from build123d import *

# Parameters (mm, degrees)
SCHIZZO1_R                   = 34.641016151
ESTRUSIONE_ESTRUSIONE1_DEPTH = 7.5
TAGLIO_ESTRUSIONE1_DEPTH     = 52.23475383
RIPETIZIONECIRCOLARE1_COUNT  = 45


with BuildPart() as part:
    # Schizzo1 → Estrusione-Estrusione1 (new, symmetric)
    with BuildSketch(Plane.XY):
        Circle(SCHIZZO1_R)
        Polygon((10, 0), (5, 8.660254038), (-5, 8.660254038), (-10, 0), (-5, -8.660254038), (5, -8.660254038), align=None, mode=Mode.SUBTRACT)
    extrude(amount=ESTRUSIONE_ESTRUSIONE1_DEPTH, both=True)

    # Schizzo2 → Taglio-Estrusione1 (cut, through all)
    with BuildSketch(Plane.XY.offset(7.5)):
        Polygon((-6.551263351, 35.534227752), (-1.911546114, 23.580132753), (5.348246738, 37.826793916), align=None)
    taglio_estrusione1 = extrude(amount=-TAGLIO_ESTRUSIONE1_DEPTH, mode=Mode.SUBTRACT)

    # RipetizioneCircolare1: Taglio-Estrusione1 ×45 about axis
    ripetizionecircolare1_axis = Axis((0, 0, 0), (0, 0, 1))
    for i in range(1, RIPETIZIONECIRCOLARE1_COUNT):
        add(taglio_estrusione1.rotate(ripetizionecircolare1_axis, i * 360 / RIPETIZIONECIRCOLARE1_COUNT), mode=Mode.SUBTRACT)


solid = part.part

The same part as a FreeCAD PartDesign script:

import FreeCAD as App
import Part
import Sketcher

V = App.Vector
Q = App.Units.Quantity

doc = App.newDocument("Part")
body = doc.addObject("PartDesign::Body", "Body")

sketch1 = body.newObject("Sketcher::SketchObject", "Sketch")
sketch1.AttachmentSupport = (doc.getObject("XY_Plane"), [""])
sketch1.MapMode = "FlatFace"
sketch1.addGeometry([
    Part.Circle(V(0, 0, 0), V(0, 0, 1), 35),
    Part.LineSegment(V(5, 9, 0), V(10, 0, 0)),
    Part.LineSegment(V(10, 0, 0), V(5, -9, 0)),
    Part.LineSegment(V(5, -9, 0), V(-5, -9, 0)),
    Part.LineSegment(V(-5, -9, 0), V(-10, 0, 0)),
    Part.LineSegment(V(-10, 0, 0), V(-5, 9, 0)),
    Part.LineSegment(V(-5, 9, 0), V(5, 9, 0)),
], False)
sketch1.addConstraint([
    Sketcher.Constraint("Coincident", 1, 2, 2, 1),
    Sketcher.Constraint("Coincident", 2, 2, 3, 1),
    Sketcher.Constraint("Coincident", 3, 2, 4, 1),
    Sketcher.Constraint("Coincident", 4, 2, 5, 1),
    Sketcher.Constraint("Coincident", 5, 2, 6, 1),
    Sketcher.Constraint("Coincident", 6, 2, 1, 1),
    Sketcher.Constraint("Horizontal", 3),
    Sketcher.Constraint("Horizontal", 6),
    Sketcher.Constraint("Coincident", 0, 3, -1, 1),
    Sketcher.Constraint("Symmetric", 1, 2, 4, 2, -1, 1),
    Sketcher.Constraint("Symmetric", 2, 2, 5, 2, -1, 1),
    Sketcher.Constraint("PointOnObject", 1, 2, -1),
    Sketcher.Constraint("Parallel", 1, 4),
    Sketcher.Constraint("Vertical", 3, 2, 5, 2),
    Sketcher.Constraint("DistanceX", 3, 2, 3, 1, Q("10 mm")),
    Sketcher.Constraint("Angle", 1, Q("-60 deg")),
    Sketcher.Constraint("Distance", 1, Q("10 mm")),
    Sketcher.Constraint("Diameter", 0, Q("69.282032 mm")),
])
pad1 = body.newObject("PartDesign::Pad", "Pad")
pad1.Profile = sketch1
pad1.Length = 15
pad1.Midplane = True

sketch2 = body.newObject("Sketcher::SketchObject", "Sketch001")
sketch2.AttachmentSupport = (doc.getObject("XY_Plane"), [""])
sketch2.MapMode = "FlatFace"
sketch2.AttachmentOffset = App.Placement(V(0, 0, 7.5), App.Rotation())
sketch2.addGeometry([
    Part.LineSegment(V(-7, 36, 0), V(-2, 24, 0)),
    Part.LineSegment(V(-2, 24, 0), V(5, 38, 0)),
    Part.LineSegment(V(5, 38, 0), V(-7, 36, 0)),
], False)
sketch2.addConstraint([
    Sketcher.Constraint("Coincident", 0, 2, 1, 1),
    Sketcher.Constraint("Coincident", 1, 2, 2, 1),
    Sketcher.Constraint("Coincident", 2, 2, 0, 1),
    Sketcher.Constraint("Distance", 2, Q("12.118341 mm")),
    Sketcher.Constraint("DistanceY", 0, 2, 1, 2, Q("14.246661 mm")),
    Sketcher.Constraint("DistanceX", 2, 2, 1, 2, Q("11.89951 mm")),
    Sketcher.Constraint("Distance", 0, Q("12.822923 mm")),
    Sketcher.Constraint("DistanceX", 0, 2, -1, 1, Q("1.911546 mm")),
    Sketcher.Constraint("DistanceY", -1, 1, 0, 2, Q("23.580133 mm")),
])
pocket1 = body.newObject("PartDesign::Pocket", "Pocket")
pocket1.Profile = sketch2
pocket1.Type = "ThroughAll"
doc.recompute()

polarpattern = body.newObject("PartDesign::PolarPattern", "PolarPattern")
polarpattern.Originals = [pocket1]
polarpattern.Axis = (doc.getObject("Z_Axis"), [""])
polarpattern.Angle = 360
polarpattern.Occurrences = 45
body.Tip = polarpattern

doc.recompute()
